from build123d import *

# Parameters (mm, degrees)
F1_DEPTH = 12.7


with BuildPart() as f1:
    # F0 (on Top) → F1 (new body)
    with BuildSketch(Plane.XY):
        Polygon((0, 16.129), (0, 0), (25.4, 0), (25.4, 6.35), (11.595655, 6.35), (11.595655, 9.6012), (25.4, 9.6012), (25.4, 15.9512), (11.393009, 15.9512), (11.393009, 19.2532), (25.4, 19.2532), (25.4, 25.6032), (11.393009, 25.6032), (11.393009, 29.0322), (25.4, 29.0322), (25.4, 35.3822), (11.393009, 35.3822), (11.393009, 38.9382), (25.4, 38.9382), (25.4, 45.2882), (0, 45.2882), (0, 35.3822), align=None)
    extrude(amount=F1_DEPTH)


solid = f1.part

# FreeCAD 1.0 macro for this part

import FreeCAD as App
import Part
import Sketcher

V = App.Vector
Q = App.Units.Quantity


def add_polygon(sketch, points):
    """Adds a closed chain of lines whose ends are joined by coincident constraints."""
    first, n = sketch.GeometryCount, len(points)
    for a, b in zip(points, points[1:] + points[:1]):
        sketch.addGeometry(Part.LineSegment(App.Vector(*a, 0), App.Vector(*b, 0)), False)
    for i in range(n):
        sketch.addConstraint(Sketcher.Constraint("Coincident", first + i, 2, first + (i + 1) % n, 1))

doc = App.newDocument("Part")
body = doc.addObject("PartDesign::Body", "Body")

sketch1 = body.newObject("Sketcher::SketchObject", "Sketch")
sketch1.AttachmentSupport = (doc.getObject("XY_Plane"), [""])
sketch1.MapMode = "FlatFace"
add_polygon(sketch1, [(0, 0), (25.4, 0), (25.4, 6.3), (11.6, 6.3), (11.6, 9.6), (25.4, 9.6), (25.4, 16), (11.4, 16), (11.4, 19.3), (25.4, 19.3), (25.4, 25.6), (11.4, 25.6), (11.4, 29), (25.4, 29), (25.4, 35.4), (11.4, 35.4), (11.4, 38.9), (25.4, 38.9), (25.4, 45.3), (0, 45.3)])
sketch1.addConstraint([
    Sketcher.Constraint("Horizontal", 0),
    Sketcher.Constraint("Vertical", 1),
    Sketcher.Constraint("Horizontal", 2),
    Sketcher.Constraint("Vertical", 3),
    Sketcher.Constraint("Horizontal", 4),
    Sketcher.Constraint("Vertical", 5),
    Sketcher.Constraint("Horizontal", 6),
    Sketcher.Constraint("Vertical", 7),
    Sketcher.Constraint("Horizontal", 8),
    Sketcher.Constraint("Vertical", 9),
    Sketcher.Constraint("Horizontal", 10),
    Sketcher.Constraint("Vertical", 11),
    Sketcher.Constraint("Horizontal", 12),
    Sketcher.Constraint("Vertical", 13),
    Sketcher.Constraint("Horizontal", 14),
    Sketcher.Constraint("Vertical", 15),
    Sketcher.Constraint("Horizontal", 16),
    Sketcher.Constraint("Vertical", 17),
    Sketcher.Constraint("Horizontal", 18),
    Sketcher.Constraint("Vertical", 19),
    Sketcher.Constraint("Coincident", 19, 2, -1, 1),
    Sketcher.Constraint("Vertical", 1, 2, 4, 2),
    Sketcher.Constraint("Vertical", 5, 2, 8, 2),
    Sketcher.Constraint("Vertical", 7, 2, 10, 2),
    Sketcher.Constraint("Vertical", 9, 2, 12, 2),
    Sketcher.Constraint("Vertical", 11, 2, 14, 2),
    Sketcher.Constraint("Vertical", 13, 2, 16, 2),
    Sketcher.Constraint("Equal", 1, 5),
    Sketcher.Constraint("Equal", 5, 9),
    Sketcher.Constraint("Equal", 9, 13),
    Sketcher.Constraint("Equal", 13, 17),
    Sketcher.Constraint("DistanceX", 0, 1, 0, 2, Q("1 in")),
    Sketcher.Constraint("DistanceY", 1, 1, 1, 2, Q("0.25 in")),
    Sketcher.Constraint("DistanceY", 7, 1, 7, 2, Q("0.13 in")),
    Sketcher.Constraint("DistanceY", 15, 1, 15, 2, Q("0.14 in")),
    Sketcher.Constraint("DistanceY", 3, 1, 3, 2, Q("0.128 in")),
    Sketcher.Constraint("DistanceY", 11, 1, 11, 2, Q("0.135 in")),
    Sketcher.Constraint("DistanceX", 6, 2, 6, 1, 14.006991),
    Sketcher.Constraint("DistanceX", 2, 2, 2, 1, 13.804345),
])
pad1 = body.newObject("PartDesign::Pad", "Pad")
pad1.Profile = sketch1
pad1.Length = Q("0.5 in")

doc.recompute()
